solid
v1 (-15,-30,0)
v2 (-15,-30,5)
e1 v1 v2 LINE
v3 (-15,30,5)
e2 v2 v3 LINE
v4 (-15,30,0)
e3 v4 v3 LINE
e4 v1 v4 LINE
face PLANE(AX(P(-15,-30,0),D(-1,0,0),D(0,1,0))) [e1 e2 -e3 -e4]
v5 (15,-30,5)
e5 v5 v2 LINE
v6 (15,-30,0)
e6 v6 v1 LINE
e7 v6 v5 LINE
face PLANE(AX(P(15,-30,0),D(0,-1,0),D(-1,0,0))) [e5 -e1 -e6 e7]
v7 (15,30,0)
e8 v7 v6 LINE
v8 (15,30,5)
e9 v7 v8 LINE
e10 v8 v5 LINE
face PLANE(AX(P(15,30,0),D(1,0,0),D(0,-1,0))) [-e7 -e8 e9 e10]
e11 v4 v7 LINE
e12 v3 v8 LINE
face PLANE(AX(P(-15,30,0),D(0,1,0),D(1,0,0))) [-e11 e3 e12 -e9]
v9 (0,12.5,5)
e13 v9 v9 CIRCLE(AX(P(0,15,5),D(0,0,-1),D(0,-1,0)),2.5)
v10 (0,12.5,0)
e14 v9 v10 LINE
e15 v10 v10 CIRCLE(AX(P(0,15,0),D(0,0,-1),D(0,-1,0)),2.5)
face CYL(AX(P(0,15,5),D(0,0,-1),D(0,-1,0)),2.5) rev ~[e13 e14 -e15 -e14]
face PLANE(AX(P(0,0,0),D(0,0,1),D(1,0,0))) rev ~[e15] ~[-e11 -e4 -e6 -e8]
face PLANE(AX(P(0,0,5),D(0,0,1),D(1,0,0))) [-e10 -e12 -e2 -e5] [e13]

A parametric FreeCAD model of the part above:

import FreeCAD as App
import Part
import Sketcher

V = App.Vector
Q = App.Units.Quantity

doc = App.newDocument("Part")
params = doc.addObject("Spreadsheet::Sheet", "Params")
for row, (alias, value) in enumerate([
    ("sketch1_width", "30 mm"),
    ("sketch1_height", "60 mm"),
    ("pad1_length", "5 mm"),
    ("sketch2_diameter", "5 mm"),
    ("hole_diameter", "5 mm"),
], start=1):
    params.set(f"A{row}", alias)
    params.set(f"B{row}", "=" + value)
    params.setAlias(f"B{row}", alias)

body = doc.addObject("PartDesign::Body", "Body")

sketch1 = body.newObject("Sketcher::SketchObject", "Sketch")
sketch1.AttachmentSupport = (doc.getObject("XY_Plane"), [""])
sketch1.MapMode = "FlatFace"
sketch1.addGeometry(Part.LineSegment(V(15, 30, 0), V(-15, 30, 0)), False)
sketch1.addGeometry(Part.LineSegment(V(-15, 30, 0), V(-15, -30, 0)), False)
sketch1.addGeometry(Part.LineSegment(V(-15, -30, 0), V(15, -30, 0)), False)
sketch1.addGeometry(Part.LineSegment(V(15, -30, 0), V(15, 30, 0)), False)
sketch1.addConstraint(Sketcher.Constraint("Coincident", 0, 2, 1, 1))
sketch1.addConstraint(Sketcher.Constraint("Coincident", 1, 2, 2, 1))
sketch1.addConstraint(Sketcher.Constraint("Coincident", 2, 2, 3, 1))
sketch1.addConstraint(Sketcher.Constraint("Coincident", 3, 2, 0, 1))
sketch1.addConstraint(Sketcher.Constraint("Horizontal", 0))
sketch1.addConstraint(Sketcher.Constraint("Vertical", 1))
sketch1.addConstraint(Sketcher.Constraint("Horizontal", 2))
sketch1.addConstraint(Sketcher.Constraint("Vertical", 3))
sketch1.addConstraint(Sketcher.Constraint("Symmetric", 0, 2, 2, 2, -1, 1))
sketch1.addConstraint(Sketcher.Constraint("DistanceX", 0, 2, 0, 1, Q("30 mm")))
sketch1.addConstraint(Sketcher.Constraint("DistanceY", 1, 2, 1, 1, Q("60 mm")))
sketch1.setExpression("Constraints[9]", "Params.sketch1_width")
sketch1.setExpression("Constraints[10]", "Params.sketch1_height")
pad1 = body.newObject("PartDesign::Pad", "Pad")
pad1.Profile = sketch1
pad1.setExpression("Length", "Params.pad1_length")

sketch2 = body.newObject("Sketcher::SketchObject", "Sketch001")
sketch2.AttachmentSupport = (doc.getObject("XY_Plane"), [""])
sketch2.MapMode = "FlatFace"
sketch2.AttachmentOffset = App.Placement(V(0, 0, 5), App.Rotation())
sketch2.addGeometry(Part.Circle(V(0, 15, 0), V(0, 0, 1), 2.5), False)
sketch2.addConstraint(Sketcher.Constraint("PointOnObject", 0, 3, -2))
sketch2.addConstraint(Sketcher.Constraint("Diameter", 0, Q("5 mm")))
sketch2.addConstraint(Sketcher.Constraint("DistanceY", -1, 1, 0, 3, Q("15 mm")))
sketch2.setExpression("Constraints[1]", "Params.sketch2_diameter")
doc.recompute()
hole = body.newObject("PartDesign::Hole", "Hole")
hole.Profile = sketch2
hole.ThreadType = "None"
hole.setExpression("Diameter", "Params.hole_diameter")
hole.DepthType = "ThroughAll"

doc.recompute()
